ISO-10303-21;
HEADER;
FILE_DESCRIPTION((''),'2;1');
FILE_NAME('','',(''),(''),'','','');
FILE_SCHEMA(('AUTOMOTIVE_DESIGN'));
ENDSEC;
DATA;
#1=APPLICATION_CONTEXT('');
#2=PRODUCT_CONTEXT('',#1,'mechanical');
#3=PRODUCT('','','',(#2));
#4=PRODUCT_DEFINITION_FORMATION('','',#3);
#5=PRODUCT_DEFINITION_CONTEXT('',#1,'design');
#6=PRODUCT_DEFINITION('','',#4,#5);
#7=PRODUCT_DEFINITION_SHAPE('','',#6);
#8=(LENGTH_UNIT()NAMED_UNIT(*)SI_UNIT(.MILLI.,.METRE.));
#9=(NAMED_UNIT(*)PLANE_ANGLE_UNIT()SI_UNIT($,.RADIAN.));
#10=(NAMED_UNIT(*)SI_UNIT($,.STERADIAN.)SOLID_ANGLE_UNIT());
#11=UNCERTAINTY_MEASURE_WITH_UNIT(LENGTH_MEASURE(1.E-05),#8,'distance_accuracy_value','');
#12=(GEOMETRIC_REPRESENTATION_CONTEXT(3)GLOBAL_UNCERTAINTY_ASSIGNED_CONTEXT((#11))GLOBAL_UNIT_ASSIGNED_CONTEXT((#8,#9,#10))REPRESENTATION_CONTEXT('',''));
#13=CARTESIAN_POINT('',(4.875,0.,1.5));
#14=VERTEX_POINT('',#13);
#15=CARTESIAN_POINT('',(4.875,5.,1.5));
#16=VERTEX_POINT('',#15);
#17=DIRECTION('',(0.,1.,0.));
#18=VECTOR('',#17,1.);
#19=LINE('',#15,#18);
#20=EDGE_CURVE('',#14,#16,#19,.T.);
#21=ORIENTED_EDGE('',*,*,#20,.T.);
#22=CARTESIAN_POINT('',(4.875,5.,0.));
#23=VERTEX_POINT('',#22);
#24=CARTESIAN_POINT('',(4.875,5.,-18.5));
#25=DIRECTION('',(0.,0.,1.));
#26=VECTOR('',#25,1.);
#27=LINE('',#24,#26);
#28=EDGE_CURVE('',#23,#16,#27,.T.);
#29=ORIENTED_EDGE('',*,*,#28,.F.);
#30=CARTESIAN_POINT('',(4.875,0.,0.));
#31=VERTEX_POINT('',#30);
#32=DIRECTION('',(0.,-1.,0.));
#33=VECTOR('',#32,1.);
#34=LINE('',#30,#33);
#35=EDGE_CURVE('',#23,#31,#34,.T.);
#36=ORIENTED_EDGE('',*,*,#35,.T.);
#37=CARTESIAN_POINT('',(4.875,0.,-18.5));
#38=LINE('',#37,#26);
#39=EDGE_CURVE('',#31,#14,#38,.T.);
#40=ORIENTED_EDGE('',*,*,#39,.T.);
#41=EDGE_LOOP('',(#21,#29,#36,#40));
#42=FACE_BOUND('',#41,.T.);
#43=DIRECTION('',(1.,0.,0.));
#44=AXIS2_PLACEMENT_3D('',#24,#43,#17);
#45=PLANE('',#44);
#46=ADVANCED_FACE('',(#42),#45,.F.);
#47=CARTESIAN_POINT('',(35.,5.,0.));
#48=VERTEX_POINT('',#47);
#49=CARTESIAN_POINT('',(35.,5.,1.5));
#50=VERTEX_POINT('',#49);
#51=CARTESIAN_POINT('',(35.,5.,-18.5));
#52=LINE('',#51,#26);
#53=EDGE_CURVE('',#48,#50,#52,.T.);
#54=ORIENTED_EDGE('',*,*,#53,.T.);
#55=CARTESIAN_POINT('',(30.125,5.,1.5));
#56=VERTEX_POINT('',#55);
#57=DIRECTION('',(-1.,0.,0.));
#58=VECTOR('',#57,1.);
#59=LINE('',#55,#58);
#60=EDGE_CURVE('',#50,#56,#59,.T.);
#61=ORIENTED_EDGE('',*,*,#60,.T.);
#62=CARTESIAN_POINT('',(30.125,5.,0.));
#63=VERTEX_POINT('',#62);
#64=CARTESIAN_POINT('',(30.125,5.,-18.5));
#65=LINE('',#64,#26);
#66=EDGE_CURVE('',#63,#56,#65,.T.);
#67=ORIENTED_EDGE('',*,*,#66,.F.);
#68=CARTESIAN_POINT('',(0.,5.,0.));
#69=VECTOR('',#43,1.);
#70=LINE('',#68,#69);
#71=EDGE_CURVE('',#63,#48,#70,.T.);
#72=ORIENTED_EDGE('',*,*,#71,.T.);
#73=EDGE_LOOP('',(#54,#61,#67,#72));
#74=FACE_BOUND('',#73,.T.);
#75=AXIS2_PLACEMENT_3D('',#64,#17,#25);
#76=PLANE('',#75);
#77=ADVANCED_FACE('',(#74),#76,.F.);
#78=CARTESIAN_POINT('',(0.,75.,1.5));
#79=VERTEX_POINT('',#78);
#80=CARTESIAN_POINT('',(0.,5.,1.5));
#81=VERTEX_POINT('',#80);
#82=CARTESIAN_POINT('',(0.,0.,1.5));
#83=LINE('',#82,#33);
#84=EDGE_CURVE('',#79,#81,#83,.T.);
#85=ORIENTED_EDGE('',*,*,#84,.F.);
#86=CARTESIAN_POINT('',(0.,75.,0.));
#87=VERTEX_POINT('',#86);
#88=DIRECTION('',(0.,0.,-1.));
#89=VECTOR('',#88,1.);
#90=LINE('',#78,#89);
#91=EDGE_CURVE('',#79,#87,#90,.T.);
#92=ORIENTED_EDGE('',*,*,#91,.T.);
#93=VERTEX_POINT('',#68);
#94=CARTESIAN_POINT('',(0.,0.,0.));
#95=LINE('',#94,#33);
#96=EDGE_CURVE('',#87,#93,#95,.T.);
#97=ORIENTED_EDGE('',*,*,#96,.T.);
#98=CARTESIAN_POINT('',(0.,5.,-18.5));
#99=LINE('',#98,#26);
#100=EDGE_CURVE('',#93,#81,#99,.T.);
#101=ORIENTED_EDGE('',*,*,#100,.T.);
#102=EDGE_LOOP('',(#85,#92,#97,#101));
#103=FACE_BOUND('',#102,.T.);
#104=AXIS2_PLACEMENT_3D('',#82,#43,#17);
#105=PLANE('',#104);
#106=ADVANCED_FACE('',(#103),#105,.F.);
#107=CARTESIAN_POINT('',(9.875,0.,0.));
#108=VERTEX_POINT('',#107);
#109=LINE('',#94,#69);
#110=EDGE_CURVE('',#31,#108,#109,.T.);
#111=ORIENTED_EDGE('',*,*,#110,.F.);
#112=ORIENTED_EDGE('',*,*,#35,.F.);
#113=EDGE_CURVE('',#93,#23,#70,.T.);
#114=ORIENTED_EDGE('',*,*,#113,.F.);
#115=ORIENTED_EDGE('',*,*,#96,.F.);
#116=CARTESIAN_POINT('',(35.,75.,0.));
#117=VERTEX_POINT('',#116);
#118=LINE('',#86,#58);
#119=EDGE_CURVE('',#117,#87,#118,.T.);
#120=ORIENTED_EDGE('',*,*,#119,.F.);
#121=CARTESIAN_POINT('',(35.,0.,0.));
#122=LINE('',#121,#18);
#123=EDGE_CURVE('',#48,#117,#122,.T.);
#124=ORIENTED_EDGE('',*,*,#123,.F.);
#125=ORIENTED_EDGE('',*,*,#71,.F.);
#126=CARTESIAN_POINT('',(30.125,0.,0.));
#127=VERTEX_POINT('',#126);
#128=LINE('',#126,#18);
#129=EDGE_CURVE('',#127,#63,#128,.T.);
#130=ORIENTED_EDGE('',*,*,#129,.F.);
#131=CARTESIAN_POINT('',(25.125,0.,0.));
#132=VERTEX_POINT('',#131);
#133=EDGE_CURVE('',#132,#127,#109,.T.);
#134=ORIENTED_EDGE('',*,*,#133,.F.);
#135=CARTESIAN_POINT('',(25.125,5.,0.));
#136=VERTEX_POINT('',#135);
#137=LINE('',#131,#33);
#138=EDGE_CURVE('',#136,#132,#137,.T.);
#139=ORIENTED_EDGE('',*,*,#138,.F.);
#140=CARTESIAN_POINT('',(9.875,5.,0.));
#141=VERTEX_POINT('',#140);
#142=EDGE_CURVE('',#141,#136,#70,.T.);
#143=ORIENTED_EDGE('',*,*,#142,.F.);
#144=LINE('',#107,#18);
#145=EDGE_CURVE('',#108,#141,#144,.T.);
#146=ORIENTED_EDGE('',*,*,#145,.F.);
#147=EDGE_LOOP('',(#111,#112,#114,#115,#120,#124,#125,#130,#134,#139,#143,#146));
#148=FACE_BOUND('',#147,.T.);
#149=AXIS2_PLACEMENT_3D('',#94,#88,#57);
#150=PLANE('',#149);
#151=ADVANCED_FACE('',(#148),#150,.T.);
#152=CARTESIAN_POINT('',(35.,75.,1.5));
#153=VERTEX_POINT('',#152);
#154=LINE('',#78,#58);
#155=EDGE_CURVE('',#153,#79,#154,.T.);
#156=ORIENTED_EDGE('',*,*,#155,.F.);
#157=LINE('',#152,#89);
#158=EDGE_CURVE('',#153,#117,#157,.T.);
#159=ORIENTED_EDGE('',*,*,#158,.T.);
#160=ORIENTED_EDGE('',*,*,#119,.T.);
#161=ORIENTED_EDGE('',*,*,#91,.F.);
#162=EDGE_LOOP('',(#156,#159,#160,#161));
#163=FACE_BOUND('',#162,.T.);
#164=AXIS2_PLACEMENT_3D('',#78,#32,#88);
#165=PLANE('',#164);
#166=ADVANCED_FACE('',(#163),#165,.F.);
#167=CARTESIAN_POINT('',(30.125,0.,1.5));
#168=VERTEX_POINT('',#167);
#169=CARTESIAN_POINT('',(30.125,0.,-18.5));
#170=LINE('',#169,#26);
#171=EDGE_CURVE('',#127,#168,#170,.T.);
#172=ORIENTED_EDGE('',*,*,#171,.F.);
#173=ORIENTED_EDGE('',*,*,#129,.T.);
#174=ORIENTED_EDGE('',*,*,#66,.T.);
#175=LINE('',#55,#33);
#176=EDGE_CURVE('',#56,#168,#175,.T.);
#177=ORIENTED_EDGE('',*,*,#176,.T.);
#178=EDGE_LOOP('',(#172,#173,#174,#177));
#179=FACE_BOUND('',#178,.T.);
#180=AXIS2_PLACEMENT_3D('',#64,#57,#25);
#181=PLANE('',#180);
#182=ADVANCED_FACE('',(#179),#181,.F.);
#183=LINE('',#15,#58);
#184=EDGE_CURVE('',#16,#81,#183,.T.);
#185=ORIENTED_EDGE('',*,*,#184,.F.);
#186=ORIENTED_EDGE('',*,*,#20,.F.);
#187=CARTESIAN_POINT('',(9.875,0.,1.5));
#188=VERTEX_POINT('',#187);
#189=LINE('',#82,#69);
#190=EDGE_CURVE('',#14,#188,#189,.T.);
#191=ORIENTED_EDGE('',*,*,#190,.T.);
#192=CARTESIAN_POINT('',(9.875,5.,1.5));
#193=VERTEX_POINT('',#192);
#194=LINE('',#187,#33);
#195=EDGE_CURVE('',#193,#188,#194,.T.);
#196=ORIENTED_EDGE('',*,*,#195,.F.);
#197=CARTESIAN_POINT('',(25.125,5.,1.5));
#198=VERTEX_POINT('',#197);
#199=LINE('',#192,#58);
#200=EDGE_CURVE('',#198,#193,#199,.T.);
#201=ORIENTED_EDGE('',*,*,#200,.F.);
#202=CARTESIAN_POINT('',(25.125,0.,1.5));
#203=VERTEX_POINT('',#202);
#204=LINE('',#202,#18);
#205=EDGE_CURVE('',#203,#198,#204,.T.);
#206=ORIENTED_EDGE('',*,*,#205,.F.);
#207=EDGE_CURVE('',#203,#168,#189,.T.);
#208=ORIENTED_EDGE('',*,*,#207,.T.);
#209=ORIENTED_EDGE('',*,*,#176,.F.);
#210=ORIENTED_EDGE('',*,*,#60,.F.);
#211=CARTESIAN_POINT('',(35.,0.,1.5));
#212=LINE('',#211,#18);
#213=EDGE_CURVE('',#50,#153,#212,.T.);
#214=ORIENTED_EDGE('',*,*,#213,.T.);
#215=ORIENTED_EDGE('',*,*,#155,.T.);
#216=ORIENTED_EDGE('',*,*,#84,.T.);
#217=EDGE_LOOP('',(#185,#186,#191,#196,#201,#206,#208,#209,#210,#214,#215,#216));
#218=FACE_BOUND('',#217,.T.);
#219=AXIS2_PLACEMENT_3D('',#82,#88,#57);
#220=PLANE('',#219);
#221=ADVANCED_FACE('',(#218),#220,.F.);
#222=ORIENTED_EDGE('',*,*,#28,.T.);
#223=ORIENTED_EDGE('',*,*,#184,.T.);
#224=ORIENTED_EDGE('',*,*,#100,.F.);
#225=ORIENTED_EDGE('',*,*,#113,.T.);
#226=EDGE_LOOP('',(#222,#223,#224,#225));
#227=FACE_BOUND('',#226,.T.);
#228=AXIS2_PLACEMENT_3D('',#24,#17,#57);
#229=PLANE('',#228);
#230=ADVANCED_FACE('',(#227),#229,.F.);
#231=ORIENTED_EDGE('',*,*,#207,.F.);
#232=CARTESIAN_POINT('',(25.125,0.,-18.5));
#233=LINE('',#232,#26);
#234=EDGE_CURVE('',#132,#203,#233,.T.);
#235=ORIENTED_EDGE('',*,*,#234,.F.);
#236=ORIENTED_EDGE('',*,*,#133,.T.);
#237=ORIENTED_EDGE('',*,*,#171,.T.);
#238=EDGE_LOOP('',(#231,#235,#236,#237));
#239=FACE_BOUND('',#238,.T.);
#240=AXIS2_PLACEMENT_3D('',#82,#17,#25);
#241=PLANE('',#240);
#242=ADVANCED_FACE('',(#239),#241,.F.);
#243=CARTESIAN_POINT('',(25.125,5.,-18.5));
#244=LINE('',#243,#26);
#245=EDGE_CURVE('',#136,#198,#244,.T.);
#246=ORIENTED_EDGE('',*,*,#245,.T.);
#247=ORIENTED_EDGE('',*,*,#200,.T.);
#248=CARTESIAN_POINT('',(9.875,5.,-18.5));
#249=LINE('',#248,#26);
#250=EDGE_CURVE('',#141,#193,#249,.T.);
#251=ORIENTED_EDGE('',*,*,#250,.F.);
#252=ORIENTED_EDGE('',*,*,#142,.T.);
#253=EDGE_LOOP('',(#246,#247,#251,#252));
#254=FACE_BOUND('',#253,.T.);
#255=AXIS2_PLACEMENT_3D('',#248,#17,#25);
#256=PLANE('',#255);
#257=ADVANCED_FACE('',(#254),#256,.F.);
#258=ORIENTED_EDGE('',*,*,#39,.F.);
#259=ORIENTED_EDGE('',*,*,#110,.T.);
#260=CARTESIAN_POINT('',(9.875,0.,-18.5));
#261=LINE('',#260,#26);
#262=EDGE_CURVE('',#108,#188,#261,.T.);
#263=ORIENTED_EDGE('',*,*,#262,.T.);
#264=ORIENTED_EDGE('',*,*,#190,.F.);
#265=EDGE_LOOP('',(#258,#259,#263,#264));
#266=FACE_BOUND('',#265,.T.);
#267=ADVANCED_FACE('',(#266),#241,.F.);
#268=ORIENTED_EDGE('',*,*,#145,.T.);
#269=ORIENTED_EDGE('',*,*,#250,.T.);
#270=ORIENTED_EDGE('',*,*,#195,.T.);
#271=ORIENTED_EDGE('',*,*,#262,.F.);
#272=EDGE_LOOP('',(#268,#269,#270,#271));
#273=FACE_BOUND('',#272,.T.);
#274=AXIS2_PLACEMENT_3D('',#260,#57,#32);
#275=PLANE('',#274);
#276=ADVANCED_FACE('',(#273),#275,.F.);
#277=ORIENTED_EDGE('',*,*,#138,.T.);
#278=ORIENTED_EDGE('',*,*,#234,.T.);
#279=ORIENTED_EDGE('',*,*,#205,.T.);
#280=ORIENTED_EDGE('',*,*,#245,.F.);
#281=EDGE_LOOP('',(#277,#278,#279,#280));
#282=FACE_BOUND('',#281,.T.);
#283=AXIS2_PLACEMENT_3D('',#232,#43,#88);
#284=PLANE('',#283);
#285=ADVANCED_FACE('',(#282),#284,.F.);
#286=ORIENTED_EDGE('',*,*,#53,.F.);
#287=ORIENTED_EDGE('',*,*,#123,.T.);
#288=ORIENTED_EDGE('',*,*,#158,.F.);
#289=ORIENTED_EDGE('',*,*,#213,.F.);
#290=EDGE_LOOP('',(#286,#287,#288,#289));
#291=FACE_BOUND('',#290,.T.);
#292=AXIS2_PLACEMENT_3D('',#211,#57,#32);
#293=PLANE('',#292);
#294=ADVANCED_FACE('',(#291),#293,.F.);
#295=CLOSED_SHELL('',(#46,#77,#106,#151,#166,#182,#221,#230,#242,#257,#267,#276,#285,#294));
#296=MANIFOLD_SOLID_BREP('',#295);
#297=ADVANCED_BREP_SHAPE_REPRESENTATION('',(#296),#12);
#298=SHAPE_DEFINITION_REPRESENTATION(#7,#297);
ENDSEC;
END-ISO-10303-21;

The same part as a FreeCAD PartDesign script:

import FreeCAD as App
import Part
import Sketcher
Q = App.Units.Quantity


def add_polygon(sketch, points):
    """Adds a closed chain of lines whose ends are joined by coincident constraints."""
    first, n = sketch.GeometryCount, len(points)
    for a, b in zip(points, points[1:] + points[:1]):
        sketch.addGeometry(Part.LineSegment(App.Vector(*a, 0), App.Vector(*b, 0)), False)
    for i in range(n):
        sketch.addConstraint(Sketcher.Constraint("Coincident", first + i, 2, first + (i + 1) % n, 1))

doc = App.newDocument("Part")
body = doc.addObject("PartDesign::Body", "Body")

# Sketch on XY plane
sketch1 = body.newObject("Sketcher::SketchObject", "Sketch")
sketch1.AttachmentSupport = (doc.getObject("XY_Plane"), [""])
sketch1.MapMode = "FlatFace"
add_polygon(sketch1, [(0, 75), (0, 0), (35, 0), (35, 75)])  # lines 0-3
sketch1.addConstraint([
    Sketcher.Constraint("Vertical", 0),
    Sketcher.Constraint("Horizontal", 1),
    Sketcher.Constraint("Vertical", 2),
    Sketcher.Constraint("Horizontal", 3),
    Sketcher.Constraint("Coincident", 0, 2, -1, 1),
    Sketcher.Constraint("DistanceX", 1, 1, 1, 2, Q("35 mm")),
    Sketcher.Constraint("DistanceY", 0, 2, 0, 1, Q("75 mm")),
])
pad1 = body.newObject("PartDesign::Pad", "Pad")
pad1.Profile = sketch1
pad1.Length = 1.5

# Sketch on XY plane
sketch2 = body.newObject("Sketcher::SketchObject", "Sketch001")
sketch2.AttachmentSupport = (doc.getObject("XY_Plane"), [""])
sketch2.MapMode = "FlatFace"
sketch2.AttachmentOffset = App.Placement(App.Vector(0, 0, 1.5), App.Rotation())
add_polygon(sketch2, [(9.9, 5), (9.9, 0), (25.1, 0), (25.1, 5)])  # lines 0-3
add_polygon(sketch2, [(30.1, 5), (30.1, 0), (35, 0), (35, 5)])  # lines 4-7
add_polygon(sketch2, [(0, 5), (0, 0), (4.9, 0), (4.9, 5)])  # lines 8-11
sketch2.addConstraint([
    Sketcher.Constraint("Vertical", 0),
    Sketcher.Constraint("Horizontal", 1),
    Sketcher.Constraint("Vertical", 2),
    Sketcher.Constraint("Horizontal", 3),
    Sketcher.Constraint("Vertical", 4),
    Sketcher.Constraint("Horizontal", 5),
    Sketcher.Constraint("Vertical", 6),
    Sketcher.Constraint("Horizontal", 7),
    Sketcher.Constraint("Vertical", 8),
    Sketcher.Constraint("Horizontal", 9),
    Sketcher.Constraint("Vertical", 10),
    Sketcher.Constraint("Horizontal", 11),
    Sketcher.Constraint("Coincident", 8, 2, -1, 1),
    Sketcher.Constraint("PointOnObject", 0, 2, -1),
    Sketcher.Constraint("PointOnObject", 4, 2, -1),
    Sketcher.Constraint("Horizontal", 3, 2, 6, 2),
    Sketcher.Constraint("Horizontal", 7, 2, 10, 2),
    Sketcher.Constraint("Equal", 7, 9),
    Sketcher.Constraint("DistanceY", 0, 2, 0, 1, Q("5 mm")),
    Sketcher.Constraint("DistanceX", -1, 1, 5, 2, Q("35 mm")),
    Sketcher.Constraint("DistanceX", 1, 2, 4, 2, Q("5 mm")),
    Sketcher.Constraint("DistanceX", 9, 2, 0, 2, Q("5 mm")),
    Sketcher.Constraint("DistanceX", 1, 1, 1, 2, Q("15.25 mm")),
])
pocket1 = body.newObject("PartDesign::Pocket", "Pocket")
pocket1.Profile = sketch2
pocket1.Length = 20

doc.recompute()
